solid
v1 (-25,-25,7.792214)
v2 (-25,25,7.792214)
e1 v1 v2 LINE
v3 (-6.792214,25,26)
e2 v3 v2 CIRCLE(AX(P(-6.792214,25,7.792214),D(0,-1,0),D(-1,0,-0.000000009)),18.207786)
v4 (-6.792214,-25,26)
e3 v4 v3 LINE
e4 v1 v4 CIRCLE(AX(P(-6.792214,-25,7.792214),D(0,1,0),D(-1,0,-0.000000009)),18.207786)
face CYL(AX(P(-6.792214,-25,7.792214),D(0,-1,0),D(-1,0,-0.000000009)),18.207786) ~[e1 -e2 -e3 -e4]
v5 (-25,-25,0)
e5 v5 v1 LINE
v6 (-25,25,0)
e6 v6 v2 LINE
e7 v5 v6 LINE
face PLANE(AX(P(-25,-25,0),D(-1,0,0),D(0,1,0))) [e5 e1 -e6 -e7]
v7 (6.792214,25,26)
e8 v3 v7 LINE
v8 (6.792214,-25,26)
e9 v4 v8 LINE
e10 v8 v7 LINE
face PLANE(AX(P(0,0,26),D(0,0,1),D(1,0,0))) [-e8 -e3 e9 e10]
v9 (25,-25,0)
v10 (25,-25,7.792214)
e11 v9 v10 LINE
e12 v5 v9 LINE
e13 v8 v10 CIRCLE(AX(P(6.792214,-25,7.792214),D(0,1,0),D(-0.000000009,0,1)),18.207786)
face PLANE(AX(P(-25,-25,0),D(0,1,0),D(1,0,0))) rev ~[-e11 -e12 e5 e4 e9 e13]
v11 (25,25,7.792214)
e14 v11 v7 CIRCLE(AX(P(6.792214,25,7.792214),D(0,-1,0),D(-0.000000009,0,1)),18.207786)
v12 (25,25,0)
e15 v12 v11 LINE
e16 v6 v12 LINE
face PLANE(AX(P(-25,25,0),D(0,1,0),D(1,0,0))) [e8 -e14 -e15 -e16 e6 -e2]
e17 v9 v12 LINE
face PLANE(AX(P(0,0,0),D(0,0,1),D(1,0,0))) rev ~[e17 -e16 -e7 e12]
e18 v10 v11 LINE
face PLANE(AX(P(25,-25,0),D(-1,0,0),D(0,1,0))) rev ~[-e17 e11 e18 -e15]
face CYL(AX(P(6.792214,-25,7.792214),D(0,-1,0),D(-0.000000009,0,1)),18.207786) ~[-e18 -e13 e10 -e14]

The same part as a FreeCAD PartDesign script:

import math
import FreeCAD as App
import Part
import Sketcher
from FreeCAD import Vector

doc = App.newDocument("Part")
params = doc.addObject("Spreadsheet::Sheet", "Params")
for row, (alias, value) in enumerate([
    ("sketch1_width", "50 mm"),
    ("pad1_length", "26 mm"),
], start=1):
    params.set(f"A{row}", alias)
    params.set(f"B{row}", "=" + value)
    params.setAlias(f"B{row}", alias)

body = doc.addObject("PartDesign::Body", "Body")

# Sketch on XY plane
sketch1 = doc.addObject("Sketcher::SketchObject", "Sketch")
body.addObject(sketch1)
sketch1.AttachmentSupport = (doc.XY_Plane, [""])
sketch1.MapMode = "FlatFace"
sketch1.addGeometry([
    Part.LineSegment(Vector(-25, 25, 0), Vector(-25, -25, 0)),
    Part.LineSegment(Vector(-25, -25, 0), Vector(25, -25, 0)),
    Part.LineSegment(Vector(25, -25, 0), Vector(25, 25, 0)),
    Part.LineSegment(Vector(25, 25, 0), Vector(-25, 25, 0)),
], False)
sketch1.addConstraint([
    Sketcher.Constraint("Coincident", 0, 2, 1, 1),
    Sketcher.Constraint("Coincident", 1, 2, 2, 1),
    Sketcher.Constraint("Coincident", 2, 2, 3, 1),
    Sketcher.Constraint("Coincident", 3, 2, 0, 1),
    Sketcher.Constraint("Vertical", 0),
    Sketcher.Constraint("Horizontal", 1),
    Sketcher.Constraint("Vertical", 2),
    Sketcher.Constraint("Horizontal", 3),
    Sketcher.Constraint("Symmetric", 0, 2, 2, 2, -1, 1),
    Sketcher.Constraint("Equal", 3, 0),
    Sketcher.Constraint("DistanceX", 1, 1, 1, 2, 50.0),
])
sketch1.setExpression("Constraints[10]", "Params.sketch1_width")
pad1 = doc.addObject("PartDesign::Pad", "Pad")
body.addObject(pad1)
pad1.Profile = sketch1
pad1.setExpression("Length", "Params.pad1_length")

# Sketch on XZ plane
sketch2 = doc.addObject("Sketcher::SketchObject", "Sketch001")
body.addObject(sketch2)
sketch2.AttachmentSupport = (doc.XZ_Plane, [""])
sketch2.MapMode = "FlatFace"
sketch2.AttachmentOffset = App.Placement(Vector(0, 0, 25), App.Rotation())
sketch2.addGeometry([
    Part.ArcOfCircle(Part.Circle(Vector(6.792214, 7.792214, 0), Vector(0, 0, 1), 18.207786), math.radians(-0.000001), math.radians(90.000001)),  # 0
    Part.LineSegment(Vector(25, 7.792214, 0), Vector(25, 26, 0)),  # 1
    Part.LineSegment(Vector(25, 26, 0), Vector(6.792214, 26, 0)),  # 2
    Part.LineSegment(Vector(-25, 26, 0), Vector(-25, 7.792214, 0)),  # 3
    Part.ArcOfCircle(Part.Circle(Vector(-6.792214, 7.792214, 0), Vector(0, 0, 1), 18.207786), math.radians(89.999999), math.radians(180.000001)),  # 4
    Part.LineSegment(Vector(-6.792214, 26, 0), Vector(-25, 26, 0)),  # 5
], False)
sketch2.addConstraint([
    Sketcher.Constraint("Tangent", 0, 1, 1, 1),
    Sketcher.Constraint("Coincident", 1, 2, 2, 1),
    Sketcher.Constraint("Tangent", 2, 2, 0, 2),
    Sketcher.Constraint("Tangent", 3, 2, 4, 2),
    Sketcher.Constraint("Tangent", 4, 1, 5, 1),
    Sketcher.Constraint("Coincident", 5, 2, 3, 1),
    Sketcher.Constraint("Vertical", 1),
    Sketcher.Constraint("Horizontal", 2),
    Sketcher.Constraint("Vertical", 3),
    Sketcher.Constraint("Horizontal", 5),
    Sketcher.Constraint("Equal", 0, 4),
    Sketcher.Constraint("Symmetric", 0, 3, 4, 3, -2),
    Sketcher.Constraint("DistanceX", -1, 1, 0, 1, 25.0),
    Sketcher.Constraint("DistanceY", -1, 1, 1, 2, 26.0),
    Sketcher.Constraint("Radius", 0, 18.207786),
])
pocket1 = doc.addObject("PartDesign::Pocket", "Pocket")
body.addObject(pocket1)
pocket1.Profile = sketch2
pocket1.Type = "ThroughAll"

doc.recompute()
